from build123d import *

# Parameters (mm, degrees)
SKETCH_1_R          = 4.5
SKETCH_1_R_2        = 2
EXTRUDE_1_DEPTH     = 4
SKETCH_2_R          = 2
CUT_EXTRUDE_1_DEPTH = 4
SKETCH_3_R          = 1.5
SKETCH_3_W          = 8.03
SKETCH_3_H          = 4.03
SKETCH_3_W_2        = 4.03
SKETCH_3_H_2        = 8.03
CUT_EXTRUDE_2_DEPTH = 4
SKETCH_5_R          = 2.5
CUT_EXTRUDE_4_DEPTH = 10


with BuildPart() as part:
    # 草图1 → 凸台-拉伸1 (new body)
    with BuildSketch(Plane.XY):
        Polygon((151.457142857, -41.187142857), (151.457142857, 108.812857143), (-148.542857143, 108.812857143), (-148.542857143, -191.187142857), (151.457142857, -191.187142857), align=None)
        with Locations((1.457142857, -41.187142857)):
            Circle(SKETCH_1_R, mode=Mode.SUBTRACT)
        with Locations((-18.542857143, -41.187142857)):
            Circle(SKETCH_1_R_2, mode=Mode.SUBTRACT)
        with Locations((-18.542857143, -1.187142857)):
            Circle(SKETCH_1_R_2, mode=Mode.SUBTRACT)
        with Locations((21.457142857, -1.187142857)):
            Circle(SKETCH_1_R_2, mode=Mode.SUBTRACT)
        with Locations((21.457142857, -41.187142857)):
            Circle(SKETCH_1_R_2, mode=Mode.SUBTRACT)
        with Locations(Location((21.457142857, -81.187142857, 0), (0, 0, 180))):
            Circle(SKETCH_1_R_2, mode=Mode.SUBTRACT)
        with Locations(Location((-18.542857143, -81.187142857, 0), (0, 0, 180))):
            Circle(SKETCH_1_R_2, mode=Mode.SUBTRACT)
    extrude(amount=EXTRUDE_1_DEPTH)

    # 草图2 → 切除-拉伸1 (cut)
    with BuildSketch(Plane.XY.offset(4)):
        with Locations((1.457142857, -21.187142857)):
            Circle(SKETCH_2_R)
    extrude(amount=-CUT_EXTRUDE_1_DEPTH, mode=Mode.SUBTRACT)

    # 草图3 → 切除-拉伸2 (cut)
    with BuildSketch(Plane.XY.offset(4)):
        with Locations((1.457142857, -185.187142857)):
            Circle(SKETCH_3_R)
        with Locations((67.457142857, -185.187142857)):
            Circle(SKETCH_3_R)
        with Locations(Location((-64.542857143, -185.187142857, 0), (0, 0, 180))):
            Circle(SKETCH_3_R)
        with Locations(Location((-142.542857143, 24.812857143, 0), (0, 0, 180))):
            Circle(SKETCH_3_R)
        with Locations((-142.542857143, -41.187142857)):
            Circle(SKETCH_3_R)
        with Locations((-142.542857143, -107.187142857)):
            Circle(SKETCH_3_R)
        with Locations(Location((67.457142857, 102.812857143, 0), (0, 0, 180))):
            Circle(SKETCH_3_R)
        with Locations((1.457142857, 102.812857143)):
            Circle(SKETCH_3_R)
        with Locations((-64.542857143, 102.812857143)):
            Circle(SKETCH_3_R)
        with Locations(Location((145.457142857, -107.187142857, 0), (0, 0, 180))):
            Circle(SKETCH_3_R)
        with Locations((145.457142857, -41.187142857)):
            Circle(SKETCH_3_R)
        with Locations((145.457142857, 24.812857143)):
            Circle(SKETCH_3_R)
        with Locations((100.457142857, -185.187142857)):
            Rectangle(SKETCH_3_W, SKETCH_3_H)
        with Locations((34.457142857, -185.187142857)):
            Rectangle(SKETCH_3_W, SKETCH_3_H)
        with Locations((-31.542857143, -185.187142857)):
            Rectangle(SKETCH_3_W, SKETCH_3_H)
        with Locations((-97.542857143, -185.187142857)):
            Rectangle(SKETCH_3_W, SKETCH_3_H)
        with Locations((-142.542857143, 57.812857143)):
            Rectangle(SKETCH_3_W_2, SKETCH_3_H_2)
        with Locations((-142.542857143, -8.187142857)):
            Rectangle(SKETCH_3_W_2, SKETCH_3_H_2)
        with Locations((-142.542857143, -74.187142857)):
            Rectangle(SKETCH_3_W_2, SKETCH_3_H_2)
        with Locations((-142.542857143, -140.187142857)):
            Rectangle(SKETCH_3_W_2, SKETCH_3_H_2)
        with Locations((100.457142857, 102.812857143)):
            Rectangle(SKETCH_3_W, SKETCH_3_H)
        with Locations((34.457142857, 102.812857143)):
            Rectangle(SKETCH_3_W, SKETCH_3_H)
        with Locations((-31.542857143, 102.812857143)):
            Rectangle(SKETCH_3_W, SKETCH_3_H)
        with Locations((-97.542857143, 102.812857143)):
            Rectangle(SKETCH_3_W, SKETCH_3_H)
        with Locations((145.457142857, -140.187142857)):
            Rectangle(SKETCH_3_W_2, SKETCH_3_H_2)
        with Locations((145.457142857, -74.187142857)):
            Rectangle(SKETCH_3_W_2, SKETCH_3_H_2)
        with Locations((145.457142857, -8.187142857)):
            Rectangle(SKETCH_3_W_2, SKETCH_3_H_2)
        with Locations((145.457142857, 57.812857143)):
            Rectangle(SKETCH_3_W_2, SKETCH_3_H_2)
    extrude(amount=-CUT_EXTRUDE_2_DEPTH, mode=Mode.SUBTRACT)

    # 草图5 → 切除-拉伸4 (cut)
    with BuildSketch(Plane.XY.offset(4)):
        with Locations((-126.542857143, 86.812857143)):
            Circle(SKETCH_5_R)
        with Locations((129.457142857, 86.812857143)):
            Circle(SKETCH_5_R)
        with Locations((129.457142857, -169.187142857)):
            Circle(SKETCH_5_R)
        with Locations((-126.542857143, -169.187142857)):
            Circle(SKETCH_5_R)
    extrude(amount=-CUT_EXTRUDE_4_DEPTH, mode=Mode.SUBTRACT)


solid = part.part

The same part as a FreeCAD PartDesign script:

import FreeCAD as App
import Part
import Sketcher

V = App.Vector
Q = App.Units.Quantity

doc = App.newDocument("Part")
body = doc.addObject("PartDesign::Body", "Body")

sketch1 = body.newObject("Sketcher::SketchObject", "Sketch")
sketch1.AttachmentSupport = (doc.getObject("XY_Plane"), [""])
sketch1.MapMode = "FlatFace"
sketch1.addGeometry(Part.LineSegment(V(151.457143, 108.812857, 0), V(-148.542857, 108.812857, 0)), False)
sketch1.addGeometry(Part.LineSegment(V(-148.542857, 108.812857, 0), V(-148.542857, -191.187143, 0)), False)
sketch1.addGeometry(Part.LineSegment(V(-148.542857, -191.187143, 0), V(151.457143, -191.187143, 0)), False)
sketch1.addGeometry(Part.LineSegment(V(151.457143, -191.187143, 0), V(151.457143, 108.812857, 0)), False)
sketch1.addGeometry(Part.Circle(V(-18.542857, -81.187143, 0), V(0, 0, 1), 2), False)
sketch1.addGeometry(Part.Circle(V(21.457143, -81.187143, 0), V(0, 0, 1), 2), False)
sketch1.addGeometry(Part.Circle(V(-18.542857, -41.187143, 0), V(0, 0, 1), 2), False)
sketch1.addGeometry(Part.Circle(V(1.457143, -41.187143, 0), V(0, 0, 1), 4.5), False)
sketch1.addGeometry(Part.Circle(V(-18.542857, -1.187143, 0), V(0, 0, 1), 2), False)
sketch1.addGeometry(Part.Circle(V(21.457143, -41.187143, 0), V(0, 0, 1), 2), False)
sketch1.addGeometry(Part.Circle(V(21.457143, -1.187143, 0), V(0, 0, 1), 2), False)
sketch1.addConstraint(Sketcher.Constraint("Coincident", 0, 2, 1, 1))
sketch1.addConstraint(Sketcher.Constraint("Coincident", 1, 2, 2, 1))
sketch1.addConstraint(Sketcher.Constraint("Coincident", 2, 2, 3, 1))
sketch1.addConstraint(Sketcher.Constraint("Coincident", 3, 2, 0, 1))
sketch1.addConstraint(Sketcher.Constraint("Horizontal", 0))
sketch1.addConstraint(Sketcher.Constraint("Vertical", 1))
sketch1.addConstraint(Sketcher.Constraint("Horizontal", 2))
sketch1.addConstraint(Sketcher.Constraint("Vertical", 3))
sketch1.addConstraint(Sketcher.Constraint("Equal", 4, 5))
sketch1.addConstraint(Sketcher.Constraint("Equal", 5, 6))
sketch1.addConstraint(Sketcher.Constraint("Equal", 6, 8))
sketch1.addConstraint(Sketcher.Constraint("Equal", 8, 9))
sketch1.addConstraint(Sketcher.Constraint("Equal", 9, 10))
sketch1.addConstraint(Sketcher.Constraint("Horizontal", 4, 3, 5, 3))
sketch1.addConstraint(Sketcher.Constraint("Horizontal", 6, 3, 7, 3))
sketch1.addConstraint(Sketcher.Constraint("Horizontal", 7, 3, 9, 3))
sketch1.addConstraint(Sketcher.Constraint("Horizontal", 8, 3, 10, 3))
sketch1.addConstraint(Sketcher.Constraint("Vertical", 4, 3, 6, 3))
sketch1.addConstraint(Sketcher.Constraint("Vertical", 6, 3, 8, 3))
sketch1.addConstraint(Sketcher.Constraint("Vertical", 5, 3, 9, 3))
sketch1.addConstraint(Sketcher.Constraint("Vertical", 9, 3, 10, 3))
sketch1.addConstraint(Sketcher.Constraint("Equal", 2, 1))
sketch1.addConstraint(Sketcher.Constraint("Diameter", 4, Q("4 mm")))
sketch1.addConstraint(Sketcher.Constraint("Diameter", 7, Q("9 mm")))
sketch1.addConstraint(Sketcher.Constraint("DistanceX", 0, 2, 0, 1, Q("300 mm")))
sketch1.addConstraint(Sketcher.Constraint("DistanceX", 4, 3, 5, 3, Q("40 mm")))
sketch1.addConstraint(Sketcher.Constraint("DistanceY", 4, 3, 6, 3, Q("40 mm")))
sketch1.addConstraint(Sketcher.Constraint("DistanceX", 6, 3, 7, 3, Q("20 mm")))
sketch1.addConstraint(Sketcher.Constraint("DistanceY", 6, 3, 8, 3, Q("40 mm")))
sketch1.addConstraint(Sketcher.Constraint("DistanceX", 0, 2, 8, 3, Q("130 mm")))
sketch1.addConstraint(Sketcher.Constraint("DistanceY", 8, 3, 0, 2, Q("110 mm")))
sketch1.addConstraint(Sketcher.Constraint("DistanceX", 4, 3, -1, 1, Q("18.542857 mm")))
sketch1.addConstraint(Sketcher.Constraint("DistanceY", 4, 3, -1, 1, Q("81.187143 mm")))
pad1 = body.newObject("PartDesign::Pad", "Pad")
pad1.Profile = sketch1
pad1.Length = 4

sketch2 = body.newObject("Sketcher::SketchObject", "Sketch001")
sketch2.AttachmentSupport = (doc.getObject("XY_Plane"), [""])
sketch2.MapMode = "FlatFace"
sketch2.AttachmentOffset = App.Placement(V(0, 0, 4), App.Rotation())
sketch2.addGeometry(Part.Circle(V(1.457143, -21.187143, 0), V(0, 0, 1), 2), False)
sketch2.addConstraint(Sketcher.Constraint("Diameter", 0, Q("4 mm")))
sketch2.addConstraint(Sketcher.Constraint("DistanceX", -1, 1, 0, 3, Q("1.457143 mm")))
sketch2.addConstraint(Sketcher.Constraint("DistanceY", 0, 3, -1, 1, Q("21.187143 mm")))
pocket1 = body.newObject("PartDesign::Pocket", "Pocket")
pocket1.Profile = sketch2
pocket1.Length = 4

sketch3 = body.newObject("Sketcher::SketchObject", "Sketch002")
sketch3.AttachmentSupport = (doc.getObject("XY_Plane"), [""])
sketch3.MapMode = "FlatFace"
sketch3.AttachmentOffset = App.Placement(V(0, 0, 4), App.Rotation())
sketch3.addGeometry(Part.Circle(V(1.457143, -185.187143, 0), V(0, 0, 1), 1.5), False)
sketch3.addGeometry(Part.Circle(V(67.457143, -185.187143, 0), V(0, 0, 1), 1.5), False)
sketch3.addGeometry(Part.Circle(V(-64.542857, -185.187143, 0), V(0, 0, 1), 1.5), False)
sketch3.addGeometry(Part.Circle(V(-142.542857, 24.812857, 0), V(0, 0, 1), 1.5), False)
sketch3.addGeometry(Part.Circle(V(-142.542857, -41.187143, 0), V(0, 0, 1), 1.5), False)
sketch3.addGeometry(Part.Circle(V(-142.542857, -107.187143, 0), V(0, 0, 1), 1.5), False)
sketch3.addGeometry(Part.Circle(V(67.457143, 102.812857, 0), V(0, 0, 1), 1.5), False)
sketch3.addGeometry(Part.Circle(V(1.457143, 102.812857, 0), V(0, 0, 1), 1.5), False)
sketch3.addGeometry(Part.Circle(V(-64.542857, 102.812857, 0), V(0, 0, 1), 1.5), False)
sketch3.addGeometry(Part.Circle(V(145.457143, -107.187143, 0), V(0, 0, 1), 1.5), False)
sketch3.addGeometry(Part.Circle(V(145.457143, -41.187143, 0), V(0, 0, 1), 1.5), False)
sketch3.addGeometry(Part.Circle(V(145.457143, 24.812857, 0), V(0, 0, 1), 1.5), False)
sketch3.addGeometry(Part.LineSegment(V(96.442143, -183.172143, 0), V(96.442143, -187.202143, 0)), False)
sketch3.addGeometry(Part.LineSegment(V(96.442143, -187.202143, 0), V(104.472143, -187.202143, 0)), False)
sketch3.addGeometry(Part.LineSegment(V(104.472143, -187.202143, 0), V(104.472143, -183.172143, 0)), False)
sketch3.addGeometry(Part.LineSegment(V(104.472143, -183.172143, 0), V(96.442143, -183.172143, 0)), False)
sketch3.addGeometry(Part.LineSegment(V(30.442143, -183.172143, 0), V(30.442143, -187.202143, 0)), False)
sketch3.addGeometry(Part.LineSegment(V(30.442143, -187.202143, 0), V(38.472143, -187.202143, 0)), False)
sketch3.addGeometry(Part.LineSegment(V(38.472143, -187.202143, 0), V(38.472143, -183.172143, 0)), False)
sketch3.addGeometry(Part.LineSegment(V(38.472143, -183.172143, 0), V(30.442143, -183.172143, 0)), False)
sketch3.addGeometry(Part.LineSegment(V(-35.557857, -183.172143, 0), V(-35.557857, -187.202143, 0)), False)
sketch3.addGeometry(Part.LineSegment(V(-35.557857, -187.202143, 0), V(-27.527857, -187.202143, 0)), False)
sketch3.addGeometry(Part.LineSegment(V(-27.527857, -187.202143, 0), V(-27.527857, -183.172143, 0)), False)
sketch3.addGeometry(Part.LineSegment(V(-27.527857, -183.172143, 0), V(-35.557857, -183.172143, 0)), False)
sketch3.addGeometry(Part.LineSegment(V(-101.557857, -183.172143, 0), V(-101.557857, -187.202143, 0)), False)
sketch3.addGeometry(Part.LineSegment(V(-101.557857, -187.202143, 0), V(-93.527857, -187.202143, 0)), False)
sketch3.addGeometry(Part.LineSegment(V(-93.527857, -187.202143, 0), V(-93.527857, -183.172143, 0)), False)
sketch3.addGeometry(Part.LineSegment(V(-93.527857, -183.172143, 0), V(-101.557857, -183.172143, 0)), False)
sketch3.addGeometry(Part.LineSegment(V(-144.557857, 61.827857, 0), V(-144.557857, 53.797857, 0)), False)
sketch3.addGeometry(Part.LineSegment(V(-144.557857, 53.797857, 0), V(-140.527857, 53.797857, 0)), False)
sketch3.addGeometry(Part.LineSegment(V(-140.527857, 53.797857, 0), V(-140.527857, 61.827857, 0)), False)
sketch3.addGeometry(Part.LineSegment(V(-140.527857, 61.827857, 0), V(-144.557857, 61.827857, 0)), False)
sketch3.addGeometry(Part.LineSegment(V(-144.557857, -4.172143, 0), V(-144.557857, -12.202143, 0)), False)
sketch3.addGeometry(Part.LineSegment(V(-144.557857, -12.202143, 0), V(-140.527857, -12.202143, 0)), False)
sketch3.addGeometry(Part.LineSegment(V(-140.527857, -12.202143, 0), V(-140.527857, -4.172143, 0)), False)
sketch3.addGeometry(Part.LineSegment(V(-140.527857, -4.172143, 0), V(-144.557857, -4.172143, 0)), False)
sketch3.addGeometry(Part.LineSegment(V(-144.557857, -70.172143, 0), V(-144.557857, -78.202143, 0)), False)
sketch3.addGeometry(Part.LineSegment(V(-144.557857, -78.202143, 0), V(-140.527857, -78.202143, 0)), False)
sketch3.addGeometry(Part.LineSegment(V(-140.527857, -78.202143, 0), V(-140.527857, -70.172143, 0)), False)
sketch3.addGeometry(Part.LineSegment(V(-140.527857, -70.172143, 0), V(-144.557857, -70.172143, 0)), False)
sketch3.addGeometry(Part.LineSegment(V(-144.557857, -136.172143, 0), V(-144.557857, -144.202143, 0)), False)
sketch3.addGeometry(Part.LineSegment(V(-144.557857, -144.202143, 0), V(-140.527857, -144.202143, 0)), False)
sketch3.addGeometry(Part.LineSegment(V(-140.527857, -144.202143, 0), V(-140.527857, -136.172143, 0)), False)
sketch3.addGeometry(Part.LineSegment(V(-140.527857, -136.172143, 0), V(-144.557857, -136.172143, 0)), False)
sketch3.addGeometry(Part.LineSegment(V(96.442143, 104.827857, 0), V(96.442143, 100.797857, 0)), False)
sketch3.addGeometry(Part.LineSegment(V(96.442143, 100.797857, 0), V(104.472143, 100.797857, 0)), False)
sketch3.addGeometry(Part.LineSegment(V(104.472143, 100.797857, 0), V(104.472143, 104.827857, 0)), False)
sketch3.addGeometry(Part.LineSegment(V(104.472143, 104.827857, 0), V(96.442143, 104.827857, 0)), False)
sketch3.addGeometry(Part.LineSegment(V(30.442143, 104.827857, 0), V(30.442143, 100.797857, 0)), False)
sketch3.addGeometry(Part.LineSegment(V(30.442143, 100.797857, 0), V(38.472143, 100.797857, 0)), False)
sketch3.addGeometry(Part.LineSegment(V(38.472143, 100.797857, 0), V(38.472143, 104.827857, 0)), False)
sketch3.addGeometry(Part.LineSegment(V(38.472143, 104.827857, 0), V(30.442143, 104.827857, 0)), False)
sketch3.addGeometry(Part.LineSegment(V(-35.557857, 104.827857, 0), V(-35.557857, 100.797857, 0)), False)
sketch3.addGeometry(Part.LineSegment(V(-35.557857, 100.797857, 0), V(-27.527857, 100.797857, 0)), False)
sketch3.addGeometry(Part.LineSegment(V(-27.527857, 100.797857, 0), V(-27.527857, 104.827857, 0)), False)
sketch3.addGeometry(Part.LineSegment(V(-27.527857, 104.827857, 0), V(-35.557857, 104.827857, 0)), False)
sketch3.addGeometry(Part.LineSegment(V(-101.557857, 104.827857, 0), V(-101.557857, 100.797857, 0)), False)
sketch3.addGeometry(Part.LineSegment(V(-101.557857, 100.797857, 0), V(-93.527857, 100.797857, 0)), False)
sketch3.addGeometry(Part.LineSegment(V(-93.527857, 100.797857, 0), V(-93.527857, 104.827857, 0)), False)
sketch3.addGeometry(Part.LineSegment(V(-93.527857, 104.827857, 0), V(-101.557857, 104.827857, 0)), False)
sketch3.addGeometry(Part.LineSegment(V(143.442143, -136.172143, 0), V(143.442143, -144.202143, 0)), False)
sketch3.addGeometry(Part.LineSegment(V(143.442143, -144.202143, 0), V(147.472143, -144.202143, 0)), False)
sketch3.addGeometry(Part.LineSegment(V(147.472143, -144.202143, 0), V(147.472143, -136.172143, 0)), False)
sketch3.addGeometry(Part.LineSegment(V(147.472143, -136.172143, 0), V(143.442143, -136.172143, 0)), False)
sketch3.addGeometry(Part.LineSegment(V(143.442143, -70.172143, 0), V(143.442143, -78.202143, 0)), False)
sketch3.addGeometry(Part.LineSegment(V(143.442143, -78.202143, 0), V(147.472143, -78.202143, 0)), False)
sketch3.addGeometry(Part.LineSegment(V(147.472143, -78.202143, 0), V(147.472143, -70.172143, 0)), False)
sketch3.addGeometry(Part.LineSegment(V(147.472143, -70.172143, 0), V(143.442143, -70.172143, 0)), False)
sketch3.addGeometry(Part.LineSegment(V(143.442143, -4.172143, 0), V(143.442143, -12.202143, 0)), False)
sketch3.addGeometry(Part.LineSegment(V(143.442143, -12.202143, 0), V(147.472143, -12.202143, 0)), False)
sketch3.addGeometry(Part.LineSegment(V(147.472143, -12.202143, 0), V(147.472143, -4.172143, 0)), False)
sketch3.addGeometry(Part.LineSegment(V(147.472143, -4.172143, 0), V(143.442143, -4.172143, 0)), False)
sketch3.addGeometry(Part.LineSegment(V(143.442143, 61.827857, 0), V(143.442143, 53.797857, 0)), False)
sketch3.addGeometry(Part.LineSegment(V(143.442143, 53.797857, 0), V(147.472143, 53.797857, 0)), False)
sketch3.addGeometry(Part.LineSegment(V(147.472143, 53.797857, 0), V(147.472143, 61.827857, 0)), False)
sketch3.addGeometry(Part.LineSegment(V(147.472143, 61.827857, 0), V(143.442143, 61.827857, 0)), False)
sketch3.addConstraint(Sketcher.Constraint("Coincident", 12, 2, 13, 1))
sketch3.addConstraint(Sketcher.Constraint("Coincident", 13, 2, 14, 1))
sketch3.addConstraint(Sketcher.Constraint("Coincident", 14, 2, 15, 1))
sketch3.addConstraint(Sketcher.Constraint("Coincident", 15, 2, 12, 1))
sketch3.addConstraint(Sketcher.Constraint("Coincident", 16, 2, 17, 1))
sketch3.addConstraint(Sketcher.Constraint("Coincident", 17, 2, 18, 1))
sketch3.addConstraint(Sketcher.Constraint("Coincident", 18, 2, 19, 1))
sketch3.addConstraint(Sketcher.Constraint("Coincident", 19, 2, 16, 1))
sketch3.addConstraint(Sketcher.Constraint("Coincident", 20, 2, 21, 1))
sketch3.addConstraint(Sketcher.Constraint("Coincident", 21, 2, 22, 1))
sketch3.addConstraint(Sketcher.Constraint("Coincident", 22, 2, 23, 1))
sketch3.addConstraint(Sketcher.Constraint("Coincident", 23, 2, 20, 1))
sketch3.addConstraint(Sketcher.Constraint("Coincident", 24, 2, 25, 1))
sketch3.addConstraint(Sketcher.Constraint("Coincident", 25, 2, 26, 1))
sketch3.addConstraint(Sketcher.Constraint("Coincident", 26, 2, 27, 1))
sketch3.addConstraint(Sketcher.Constraint("Coincident", 27, 2, 24, 1))
sketch3.addConstraint(Sketcher.Constraint("Coincident", 28, 2, 29, 1))
sketch3.addConstraint(Sketcher.Constraint("Coincident", 29, 2, 30, 1))
sketch3.addConstraint(Sketcher.Constraint("Coincident", 30, 2, 31, 1))
sketch3.addConstraint(Sketcher.Constraint("Coincident", 31, 2, 28, 1))
sketch3.addConstraint(Sketcher.Constraint("Coincident", 32, 2, 33, 1))
sketch3.addConstraint(Sketcher.Constraint("Coincident", 33, 2, 34, 1))
sketch3.addConstraint(Sketcher.Constraint("Coincident", 34, 2, 35, 1))
sketch3.addConstraint(Sketcher.Constraint("Coincident", 35, 2, 32, 1))
sketch3.addConstraint(Sketcher.Constraint("Coincident", 36, 2, 37, 1))
sketch3.addConstraint(Sketcher.Constraint("Coincident", 37, 2, 38, 1))
sketch3.addConstraint(Sketcher.Constraint("Coincident", 38, 2, 39, 1))
sketch3.addConstraint(Sketcher.Constraint("Coincident", 39, 2, 36, 1))
sketch3.addConstraint(Sketcher.Constraint("Coincident", 40, 2, 41, 1))
sketch3.addConstraint(Sketcher.Constraint("Coincident", 41, 2, 42, 1))
sketch3.addConstraint(Sketcher.Constraint("Coincident", 42, 2, 43, 1))
sketch3.addConstraint(Sketcher.Constraint("Coincident", 43, 2, 40, 1))
sketch3.addConstraint(Sketcher.Constraint("Coincident", 44, 2, 45, 1))
sketch3.addConstraint(Sketcher.Constraint("Coincident", 45, 2, 46, 1))
sketch3.addConstraint(Sketcher.Constraint("Coincident", 46, 2, 47, 1))
sketch3.addConstraint(Sketcher.Constraint("Coincident", 47, 2, 44, 1))
sketch3.addConstraint(Sketcher.Constraint("Coincident", 48, 2, 49, 1))
sketch3.addConstraint(Sketcher.Constraint("Coincident", 49, 2, 50, 1))
sketch3.addConstraint(Sketcher.Constraint("Coincident", 50, 2, 51, 1))
sketch3.addConstraint(Sketcher.Constraint("Coincident", 51, 2, 48, 1))
sketch3.addConstraint(Sketcher.Constraint("Coincident", 52, 2, 53, 1))
sketch3.addConstraint(Sketcher.Constraint("Coincident", 53, 2, 54, 1))
sketch3.addConstraint(Sketcher.Constraint("Coincident", 54, 2, 55, 1))
sketch3.addConstraint(Sketcher.Constraint("Coincident", 55, 2, 52, 1))
sketch3.addConstraint(Sketcher.Constraint("Coincident", 56, 2, 57, 1))
sketch3.addConstraint(Sketcher.Constraint("Coincident", 57, 2, 58, 1))
sketch3.addConstraint(Sketcher.Constraint("Coincident", 58, 2, 59, 1))
sketch3.addConstraint(Sketcher.Constraint("Coincident", 59, 2, 56, 1))
sketch3.addConstraint(Sketcher.Constraint("Coincident", 60, 2, 61, 1))
sketch3.addConstraint(Sketcher.Constraint("Coincident", 61, 2, 62, 1))
sketch3.addConstraint(Sketcher.Constraint("Coincident", 62, 2, 63, 1))
sketch3.addConstraint(Sketcher.Constraint("Coincident", 63, 2, 60, 1))
sketch3.addConstraint(Sketcher.Constraint("Coincident", 64, 2, 65, 1))
sketch3.addConstraint(Sketcher.Constraint("Coincident", 65, 2, 66, 1))
sketch3.addConstraint(Sketcher.Constraint("Coincident", 66, 2, 67, 1))
sketch3.addConstraint(Sketcher.Constraint("Coincident", 67, 2, 64, 1))
sketch3.addConstraint(Sketcher.Constraint("Coincident", 68, 2, 69, 1))
sketch3.addConstraint(Sketcher.Constraint("Coincident", 69, 2, 70, 1))
sketch3.addConstraint(Sketcher.Constraint("Coincident", 70, 2, 71, 1))
sketch3.addConstraint(Sketcher.Constraint("Coincident", 71, 2, 68, 1))
sketch3.addConstraint(Sketcher.Constraint("Coincident", 72, 2, 73, 1))
sketch3.addConstraint(Sketcher.Constraint("Coincident", 73, 2, 74, 1))
sketch3.addConstraint(Sketcher.Constraint("Coincident", 74, 2, 75, 1))
sketch3.addConstraint(Sketcher.Constraint("Coincident", 75, 2, 72, 1))
sketch3.addConstraint(Sketcher.Constraint("Vertical", 12))
sketch3.addConstraint(Sketcher.Constraint("Horizontal", 13))
sketch3.addConstraint(Sketcher.Constraint("Vertical", 14))
sketch3.addConstraint(Sketcher.Constraint("Horizontal", 15))
sketch3.addConstraint(Sketcher.Constraint("Vertical", 16))
sketch3.addConstraint(Sketcher.Constraint("Horizontal", 17))
sketch3.addConstraint(Sketcher.Constraint("Vertical", 18))
sketch3.addConstraint(Sketcher.Constraint("Horizontal", 19))
sketch3.addConstraint(Sketcher.Constraint("Vertical", 20))
sketch3.addConstraint(Sketcher.Constraint("Horizontal", 21))
sketch3.addConstraint(Sketcher.Constraint("Vertical", 22))
sketch3.addConstraint(Sketcher.Constraint("Horizontal", 23))
sketch3.addConstraint(Sketcher.Constraint("Vertical", 24))
sketch3.addConstraint(Sketcher.Constraint("Horizontal", 25))
sketch3.addConstraint(Sketcher.Constraint("Vertical", 26))
sketch3.addConstraint(Sketcher.Constraint("Horizontal", 27))
sketch3.addConstraint(Sketcher.Constraint("Vertical", 28))
sketch3.addConstraint(Sketcher.Constraint("Horizontal", 29))
sketch3.addConstraint(Sketcher.Constraint("Vertical", 30))
sketch3.addConstraint(Sketcher.Constraint("Horizontal", 31))
sketch3.addConstraint(Sketcher.Constraint("Vertical", 32))
sketch3.addConstraint(Sketcher.Constraint("Horizontal", 33))
sketch3.addConstraint(Sketcher.Constraint("Vertical", 34))
sketch3.addConstraint(Sketcher.Constraint("Horizontal", 35))
sketch3.addConstraint(Sketcher.Constraint("Vertical", 36))
sketch3.addConstraint(Sketcher.Constraint("Horizontal", 37))
sketch3.addConstraint(Sketcher.Constraint("Vertical", 38))
sketch3.addConstraint(Sketcher.Constraint("Horizontal", 39))
sketch3.addConstraint(Sketcher.Constraint("Vertical", 40))
sketch3.addConstraint(Sketcher.Constraint("Horizontal", 41))
sketch3.addConstraint(Sketcher.Constraint("Vertical", 42))
sketch3.addConstraint(Sketcher.Constraint("Horizontal", 43))
sketch3.addConstraint(Sketcher.Constraint("Vertical", 44))
sketch3.addConstraint(Sketcher.Constraint("Horizontal", 45))
sketch3.addConstraint(Sketcher.Constraint("Vertical", 46))
sketch3.addConstraint(Sketcher.Constraint("Horizontal", 47))
sketch3.addConstraint(Sketcher.Constraint("Vertical", 48))
sketch3.addConstraint(Sketcher.Constraint("Horizontal", 49))
sketch3.addConstraint(Sketcher.Constraint("Vertical", 50))
sketch3.addConstraint(Sketcher.Constraint("Horizontal", 51))
sketch3.addConstraint(Sketcher.Constraint("Vertical", 52))
sketch3.addConstraint(Sketcher.Constraint("Horizontal", 53))
sketch3.addConstraint(Sketcher.Constraint("Vertical", 54))
sketch3.addConstraint(Sketcher.Constraint("Horizontal", 55))
sketch3.addConstraint(Sketcher.Constraint("Vertical", 56))
sketch3.addConstraint(Sketcher.Constraint("Horizontal", 57))
sketch3.addConstraint(Sketcher.Constraint("Vertical", 58))
sketch3.addConstraint(Sketcher.Constraint("Horizontal", 59))
sketch3.addConstraint(Sketcher.Constraint("Vertical", 60))
sketch3.addConstraint(Sketcher.Constraint("Horizontal", 61))
sketch3.addConstraint(Sketcher.Constraint("Vertical", 62))
sketch3.addConstraint(Sketcher.Constraint("Horizontal", 63))
sketch3.addConstraint(Sketcher.Constraint("Vertical", 64))
sketch3.addConstraint(Sketcher.Constraint("Horizontal", 65))
sketch3.addConstraint(Sketcher.Constraint("Vertical", 66))
sketch3.addConstraint(Sketcher.Constraint("Horizontal", 67))
sketch3.addConstraint(Sketcher.Constraint("Vertical", 68))
sketch3.addConstraint(Sketcher.Constraint("Horizontal", 69))
sketch3.addConstraint(Sketcher.Constraint("Vertical", 70))
sketch3.addConstraint(Sketcher.Constraint("Horizontal", 71))
sketch3.addConstraint(Sketcher.Constraint("Vertical", 72))
sketch3.addConstraint(Sketcher.Constraint("Horizontal", 73))
sketch3.addConstraint(Sketcher.Constraint("Vertical", 74))
sketch3.addConstraint(Sketcher.Constraint("Horizontal", 75))
sketch3.addConstraint(Sketcher.Constraint("Equal", 0, 1))
sketch3.addConstraint(Sketcher.Constraint("Equal", 1, 2))
sketch3.addConstraint(Sketcher.Constraint("Equal", 2, 3))
sketch3.addConstraint(Sketcher.Constraint("Equal", 3, 4))
sketch3.addConstraint(Sketcher.Constraint("Equal", 4, 5))
sketch3.addConstraint(Sketcher.Constraint("Equal", 5, 6))
sketch3.addConstraint(Sketcher.Constraint("Equal", 6, 7))
sketch3.addConstraint(Sketcher.Constraint("Equal", 7, 8))
sketch3.addConstraint(Sketcher.Constraint("Equal", 8, 9))
sketch3.addConstraint(Sketcher.Constraint("Equal", 9, 10))
sketch3.addConstraint(Sketcher.Constraint("Equal", 10, 11))
sketch3.addConstraint(Sketcher.Constraint("Horizontal", 0, 3, 1, 3))
sketch3.addConstraint(Sketcher.Constraint("Horizontal", 1, 3, 2, 3))
sketch3.addConstraint(Sketcher.Constraint("Horizontal", 6, 3, 7, 3))
sketch3.addConstraint(Sketcher.Constraint("Horizontal", 7, 3, 8, 3))
sketch3.addConstraint(Sketcher.Constraint("Horizontal", 5, 3, 9, 3))
sketch3.addConstraint(Sketcher.Constraint("Horizontal", 4, 3, 10, 3))
sketch3.addConstraint(Sketcher.Constraint("Horizontal", 3, 3, 11, 3))
sketch3.addConstraint(Sketcher.Constraint("Horizontal", 13, 2, 16, 2))
sketch3.addConstraint(Sketcher.Constraint("Horizontal", 15, 2, 18, 2))
sketch3.addConstraint(Sketcher.Constraint("Horizontal", 17, 2, 20, 2))
sketch3.addConstraint(Sketcher.Constraint("Horizontal", 19, 2, 22, 2))
sketch3.addConstraint(Sketcher.Constraint("Horizontal", 21, 2, 24, 2))
sketch3.addConstraint(Sketcher.Constraint("Horizontal", 23, 2, 26, 2))
sketch3.addConstraint(Sketcher.Constraint("Horizontal", 45, 2, 48, 2))
sketch3.addConstraint(Sketcher.Constraint("Horizontal", 47, 2, 50, 2))
sketch3.addConstraint(Sketcher.Constraint("Horizontal", 49, 2, 52, 2))
sketch3.addConstraint(Sketcher.Constraint("Horizontal", 51, 2, 54, 2))
sketch3.addConstraint(Sketcher.Constraint("Horizontal", 53, 2, 56, 2))
sketch3.addConstraint(Sketcher.Constraint("Horizontal", 55, 2, 58, 2))
sketch3.addConstraint(Sketcher.Constraint("Horizontal", 41, 2, 60, 2))
sketch3.addConstraint(Sketcher.Constraint("Horizontal", 43, 2, 62, 2))
sketch3.addConstraint(Sketcher.Constraint("Horizontal", 37, 2, 64, 2))
sketch3.addConstraint(Sketcher.Constraint("Horizontal", 39, 2, 66, 2))
sketch3.addConstraint(Sketcher.Constraint("Horizontal", 33, 2, 68, 2))
sketch3.addConstraint(Sketcher.Constraint("Horizontal", 35, 2, 70, 2))
sketch3.addConstraint(Sketcher.Constraint("Horizontal", 29, 2, 72, 2))
sketch3.addConstraint(Sketcher.Constraint("Horizontal", 31, 2, 74, 2))
sketch3.addConstraint(Sketcher.Constraint("Vertical", 3, 3, 4, 3))
sketch3.addConstraint(Sketcher.Constraint("Vertical", 4, 3, 5, 3))
sketch3.addConstraint(Sketcher.Constraint("Vertical", 1, 3, 6, 3))
sketch3.addConstraint(Sketcher.Constraint("Vertical", 0, 3, 7, 3))
sketch3.addConstraint(Sketcher.Constraint("Vertical", 2, 3, 8, 3))
sketch3.addConstraint(Sketcher.Constraint("Vertical", 9, 3, 10, 3))
sketch3.addConstraint(Sketcher.Constraint("Vertical", 10, 3, 11, 3))
sketch3.addConstraint(Sketcher.Constraint("Vertical", 31, 2, 32, 2))
sketch3.addConstraint(Sketcher.Constraint("Vertical", 30, 2, 33, 2))
sketch3.addConstraint(Sketcher.Constraint("Vertical", 35, 2, 36, 2))
sketch3.addConstraint(Sketcher.Constraint("Vertical", 34, 2, 37, 2))
sketch3.addConstraint(Sketcher.Constraint("Vertical", 39, 2, 40, 2))
sketch3.addConstraint(Sketcher.Constraint("Vertical", 38, 2, 41, 2))
sketch3.addConstraint(Sketcher.Constraint("Vertical", 15, 2, 44, 2))
sketch3.addConstraint(Sketcher.Constraint("Vertical", 14, 2, 45, 2))
sketch3.addConstraint(Sketcher.Constraint("Vertical", 19, 2, 48, 2))
sketch3.addConstraint(Sketcher.Constraint("Vertical", 18, 2, 49, 2))
sketch3.addConstraint(Sketcher.Constraint("Vertical", 23, 2, 52, 2))
sketch3.addConstraint(Sketcher.Constraint("Vertical", 22, 2, 53, 2))
sketch3.addConstraint(Sketcher.Constraint("Vertical", 27, 2, 56, 2))
sketch3.addConstraint(Sketcher.Constraint("Vertical", 26, 2, 57, 2))
sketch3.addConstraint(Sketcher.Constraint("Vertical", 63, 2, 64, 2))
sketch3.addConstraint(Sketcher.Constraint("Vertical", 62, 2, 65, 2))
sketch3.addConstraint(Sketcher.Constraint("Vertical", 67, 2, 68, 2))
sketch3.addConstraint(Sketcher.Constraint("Vertical", 66, 2, 69, 2))
sketch3.addConstraint(Sketcher.Constraint("Vertical", 71, 2, 72, 2))
sketch3.addConstraint(Sketcher.Constraint("Vertical", 70, 2, 73, 2))
sketch3.addConstraint(Sketcher.Constraint("Equal", 15, 17))
sketch3.addConstraint(Sketcher.Constraint("Equal", 19, 21))
sketch3.addConstraint(Sketcher.Constraint("Equal", 23, 25))
sketch3.addConstraint(Sketcher.Constraint("Equal", 43, 61))
sketch3.addConstraint(Sketcher.Constraint("Equal", 75, 12))
sketch3.addConstraint(Sketcher.Constraint("Equal", 59, 28))
sketch3.addConstraint(Sketcher.Constraint("Equal", 30, 32))
sketch3.addConstraint(Sketcher.Constraint("Equal", 34, 36))
sketch3.addConstraint(Sketcher.Constraint("Equal", 38, 40))
sketch3.addConstraint(Sketcher.Constraint("Equal", 26, 44))
sketch3.addConstraint(Sketcher.Constraint("Diameter", 0, Q("3 mm")))
sketch3.addConstraint(Sketcher.Constraint("DistanceX", 13, 1, 13, 2, Q("8.03 mm")))
sketch3.addConstraint(Sketcher.Constraint("DistanceX", 29, 1, 29, 2, Q("4.03 mm")))
sketch3.addConstraint(Sketcher.Constraint("DistanceX", -1, 1, 0, 3, Q("1.457143 mm")))
sketch3.addConstraint(Sketcher.Constraint("DistanceY", 0, 3, -1, 1, Q("185.187143 mm")))
sketch3.addConstraint(Sketcher.Constraint("DistanceX", -1, 1, 1, 3, Q("67.457143 mm")))
sketch3.addConstraint(Sketcher.Constraint("DistanceX", 2, 3, -1, 1, Q("64.542857 mm")))
sketch3.addConstraint(Sketcher.Constraint("DistanceX", 3, 3, -1, 1, Q("142.542857 mm")))
sketch3.addConstraint(Sketcher.Constraint("DistanceY", -1, 1, 3, 3, Q("24.812857 mm")))
sketch3.addConstraint(Sketcher.Constraint("DistanceY", 4, 3, -1, 1, Q("41.187143 mm")))
sketch3.addConstraint(Sketcher.Constraint("DistanceY", 5, 3, -1, 1, Q("107.187143 mm")))
sketch3.addConstraint(Sketcher.Constraint("DistanceY", -1, 1, 6, 3, Q("102.812857 mm")))
sketch3.addConstraint(Sketcher.Constraint("DistanceX", -1, 1, 9, 3, Q("145.457143 mm")))
sketch3.addConstraint(Sketcher.Constraint("DistanceX", -1, 1, 12, 2, Q("96.442143 mm")))
sketch3.addConstraint(Sketcher.Constraint("DistanceY", 12, 2, -1, 1, Q("187.202143 mm")))
sketch3.addConstraint(Sketcher.Constraint("DistanceX", -1, 1, 16, 2, Q("30.442143 mm")))
sketch3.addConstraint(Sketcher.Constraint("DistanceX", 20, 2, -1, 1, Q("35.557857 mm")))
sketch3.addConstraint(Sketcher.Constraint("DistanceX", 24, 2, -1, 1, Q("101.557857 mm")))
sketch3.addConstraint(Sketcher.Constraint("DistanceX", 28, 2, -1, 1, Q("144.557857 mm")))
sketch3.addConstraint(Sketcher.Constraint("DistanceY", -1, 1, 28, 2, Q("53.797857 mm")))
sketch3.addConstraint(Sketcher.Constraint("DistanceY", 32, 2, -1, 1, Q("12.202143 mm")))
sketch3.addConstraint(Sketcher.Constraint("DistanceY", 36, 2, -1, 1, Q("78.202143 mm")))
sketch3.addConstraint(Sketcher.Constraint("DistanceY", 40, 2, -1, 1, Q("144.202143 mm")))
sketch3.addConstraint(Sketcher.Constraint("DistanceY", -1, 1, 44, 2, Q("100.797857 mm")))
sketch3.addConstraint(Sketcher.Constraint("DistanceX", -1, 1, 60, 2, Q("143.442143 mm")))
pocket2 = body.newObject("PartDesign::Pocket", "Pocket001")
pocket2.Profile = sketch3
pocket2.Length = 4

sketch4 = body.newObject("Sketcher::SketchObject", "Sketch003")
sketch4.AttachmentSupport = (doc.getObject("XY_Plane"), [""])
sketch4.MapMode = "FlatFace"
sketch4.AttachmentOffset = App.Placement(V(0, 0, 4), App.Rotation())
sketch4.addGeometry(Part.Circle(V(-126.542857, 86.812857, 0), V(0, 0, 1), 2.5), False)
sketch4.addGeometry(Part.Circle(V(129.457143, 86.812857, 0), V(0, 0, 1), 2.5), False)
sketch4.addGeometry(Part.Circle(V(129.457143, -169.187143, 0), V(0, 0, 1), 2.5), False)
sketch4.addGeometry(Part.Circle(V(-126.542857, -169.187143, 0), V(0, 0, 1), 2.5), False)
sketch4.addConstraint(Sketcher.Constraint("Equal", 0, 1))
sketch4.addConstraint(Sketcher.Constraint("Equal", 1, 2))
sketch4.addConstraint(Sketcher.Constraint("Equal", 2, 3))
sketch4.addConstraint(Sketcher.Constraint("Horizontal", 0, 3, 1, 3))
sketch4.addConstraint(Sketcher.Constraint("Horizontal", 2, 3, 3, 3))
sketch4.addConstraint(Sketcher.Constraint("Vertical", 1, 3, 2, 3))
sketch4.addConstraint(Sketcher.Constraint("Vertical", 0, 3, 3, 3))
sketch4.addConstraint(Sketcher.Constraint("Diameter", 0, Q("5 mm")))
sketch4.addConstraint(Sketcher.Constraint("DistanceX", 0, 3, 1, 3, Q("256 mm")))
sketch4.addConstraint(Sketcher.Constraint("DistanceY", 2, 3, 1, 3, Q("256 mm")))
sketch4.addConstraint(Sketcher.Constraint("DistanceX", 0, 3, -1, 1, Q("126.542857 mm")))
sketch4.addConstraint(Sketcher.Constraint("DistanceY", -1, 1, 0, 3, Q("86.812857 mm")))
pocket3 = body.newObject("PartDesign::Pocket", "Pocket002")
pocket3.Profile = sketch4
pocket3.Length = 10

doc.recompute()
